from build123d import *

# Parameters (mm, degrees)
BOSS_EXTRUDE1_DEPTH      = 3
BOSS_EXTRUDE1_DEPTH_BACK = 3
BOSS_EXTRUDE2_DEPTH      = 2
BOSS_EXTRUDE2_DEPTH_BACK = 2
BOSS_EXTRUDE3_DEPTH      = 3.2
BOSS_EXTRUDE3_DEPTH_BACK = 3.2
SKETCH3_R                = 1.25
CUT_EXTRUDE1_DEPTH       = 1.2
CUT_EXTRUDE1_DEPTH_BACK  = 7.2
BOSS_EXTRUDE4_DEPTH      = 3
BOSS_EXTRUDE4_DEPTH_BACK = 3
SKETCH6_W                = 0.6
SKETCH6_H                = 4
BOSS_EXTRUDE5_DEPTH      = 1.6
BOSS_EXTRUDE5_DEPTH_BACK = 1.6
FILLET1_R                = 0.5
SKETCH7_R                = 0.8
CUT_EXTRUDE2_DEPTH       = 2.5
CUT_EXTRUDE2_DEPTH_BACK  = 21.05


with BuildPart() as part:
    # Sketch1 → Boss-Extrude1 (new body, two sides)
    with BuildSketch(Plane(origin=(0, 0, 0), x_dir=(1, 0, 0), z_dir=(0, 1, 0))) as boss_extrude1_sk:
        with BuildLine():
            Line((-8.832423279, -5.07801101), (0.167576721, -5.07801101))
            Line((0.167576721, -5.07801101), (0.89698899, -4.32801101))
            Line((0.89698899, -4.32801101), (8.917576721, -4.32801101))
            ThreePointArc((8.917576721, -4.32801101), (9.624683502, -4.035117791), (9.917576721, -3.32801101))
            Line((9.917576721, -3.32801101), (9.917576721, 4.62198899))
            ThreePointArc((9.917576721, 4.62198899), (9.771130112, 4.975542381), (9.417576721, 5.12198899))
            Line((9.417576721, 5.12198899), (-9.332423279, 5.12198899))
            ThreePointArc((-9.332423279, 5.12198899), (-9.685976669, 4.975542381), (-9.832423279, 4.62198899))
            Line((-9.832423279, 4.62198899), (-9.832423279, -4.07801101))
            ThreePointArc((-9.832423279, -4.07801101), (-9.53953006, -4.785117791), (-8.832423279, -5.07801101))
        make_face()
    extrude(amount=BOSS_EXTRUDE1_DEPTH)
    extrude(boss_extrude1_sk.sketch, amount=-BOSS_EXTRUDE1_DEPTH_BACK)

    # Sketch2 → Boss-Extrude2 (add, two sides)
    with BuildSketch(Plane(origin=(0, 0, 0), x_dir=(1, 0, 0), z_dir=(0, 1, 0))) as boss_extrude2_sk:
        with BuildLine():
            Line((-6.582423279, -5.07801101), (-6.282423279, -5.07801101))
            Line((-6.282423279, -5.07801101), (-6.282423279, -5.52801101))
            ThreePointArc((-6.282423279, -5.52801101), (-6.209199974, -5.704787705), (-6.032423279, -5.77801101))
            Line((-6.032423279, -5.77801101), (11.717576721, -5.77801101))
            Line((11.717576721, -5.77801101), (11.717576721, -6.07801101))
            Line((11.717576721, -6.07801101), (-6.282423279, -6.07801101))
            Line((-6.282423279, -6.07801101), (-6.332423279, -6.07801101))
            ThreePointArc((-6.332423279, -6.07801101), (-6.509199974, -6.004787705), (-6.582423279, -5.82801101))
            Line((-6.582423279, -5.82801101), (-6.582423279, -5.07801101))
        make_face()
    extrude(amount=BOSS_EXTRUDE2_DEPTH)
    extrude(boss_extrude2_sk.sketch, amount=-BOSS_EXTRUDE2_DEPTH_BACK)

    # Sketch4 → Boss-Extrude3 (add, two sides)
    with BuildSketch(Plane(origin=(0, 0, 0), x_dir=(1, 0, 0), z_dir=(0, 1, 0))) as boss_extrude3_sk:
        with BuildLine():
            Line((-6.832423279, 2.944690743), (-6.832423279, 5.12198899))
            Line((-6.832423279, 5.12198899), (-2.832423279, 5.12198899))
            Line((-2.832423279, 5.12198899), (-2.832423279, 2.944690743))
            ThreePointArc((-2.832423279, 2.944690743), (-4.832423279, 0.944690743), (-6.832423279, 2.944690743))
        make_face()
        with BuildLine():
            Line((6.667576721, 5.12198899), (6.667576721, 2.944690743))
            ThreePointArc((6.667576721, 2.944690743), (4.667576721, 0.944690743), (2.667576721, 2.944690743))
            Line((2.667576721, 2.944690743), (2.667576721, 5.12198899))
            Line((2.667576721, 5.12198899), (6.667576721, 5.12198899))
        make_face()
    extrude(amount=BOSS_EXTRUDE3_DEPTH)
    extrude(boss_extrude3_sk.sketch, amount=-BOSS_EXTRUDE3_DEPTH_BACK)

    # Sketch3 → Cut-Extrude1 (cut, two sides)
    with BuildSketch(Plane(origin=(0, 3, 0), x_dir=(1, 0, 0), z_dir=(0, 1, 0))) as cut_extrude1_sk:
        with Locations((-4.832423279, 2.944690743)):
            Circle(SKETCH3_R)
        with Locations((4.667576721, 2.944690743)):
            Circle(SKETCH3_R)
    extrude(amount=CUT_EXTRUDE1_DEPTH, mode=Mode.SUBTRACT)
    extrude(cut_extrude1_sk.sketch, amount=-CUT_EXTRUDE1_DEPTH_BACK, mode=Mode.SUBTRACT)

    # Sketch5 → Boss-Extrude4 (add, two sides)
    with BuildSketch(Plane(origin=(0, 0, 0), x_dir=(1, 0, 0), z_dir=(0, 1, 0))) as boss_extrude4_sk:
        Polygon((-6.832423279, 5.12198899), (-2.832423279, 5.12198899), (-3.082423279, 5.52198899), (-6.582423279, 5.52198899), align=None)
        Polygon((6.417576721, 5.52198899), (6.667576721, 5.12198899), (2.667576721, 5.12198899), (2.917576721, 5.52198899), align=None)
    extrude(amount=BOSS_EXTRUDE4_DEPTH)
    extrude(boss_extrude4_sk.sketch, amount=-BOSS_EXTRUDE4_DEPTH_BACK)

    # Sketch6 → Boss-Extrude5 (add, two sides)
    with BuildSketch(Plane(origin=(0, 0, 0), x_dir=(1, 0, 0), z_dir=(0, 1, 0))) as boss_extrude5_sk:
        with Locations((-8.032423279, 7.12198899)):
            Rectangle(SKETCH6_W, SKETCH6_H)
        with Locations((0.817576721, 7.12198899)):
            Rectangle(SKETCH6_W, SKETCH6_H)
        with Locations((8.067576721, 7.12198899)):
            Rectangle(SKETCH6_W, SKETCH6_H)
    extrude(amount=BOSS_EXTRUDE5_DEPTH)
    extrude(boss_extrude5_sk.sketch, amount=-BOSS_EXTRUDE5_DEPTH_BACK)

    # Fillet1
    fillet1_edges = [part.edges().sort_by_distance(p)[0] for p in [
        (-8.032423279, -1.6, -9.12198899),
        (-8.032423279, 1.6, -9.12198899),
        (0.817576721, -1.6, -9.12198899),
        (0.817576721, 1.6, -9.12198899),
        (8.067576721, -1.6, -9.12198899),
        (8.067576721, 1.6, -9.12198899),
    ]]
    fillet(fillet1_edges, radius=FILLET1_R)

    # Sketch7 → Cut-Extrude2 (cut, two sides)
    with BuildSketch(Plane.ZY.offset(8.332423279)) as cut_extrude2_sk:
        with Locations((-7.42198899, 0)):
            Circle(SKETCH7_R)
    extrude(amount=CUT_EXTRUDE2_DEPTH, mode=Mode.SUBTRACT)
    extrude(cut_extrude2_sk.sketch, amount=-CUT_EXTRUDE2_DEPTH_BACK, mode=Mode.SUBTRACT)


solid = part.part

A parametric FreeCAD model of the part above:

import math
import FreeCAD as App
import Part
import Sketcher
from FreeCAD import Vector


def edges_at(feature, points):
    """Names of the edges that pass closest to the given points."""
    edges = feature.Shape.Edges
    near = lambda p: min(range(len(edges)), key=lambda i: edges[i].distToShape(Part.Vertex(*p))[0])
    return sorted({f"Edge{near(p) + 1}" for p in points})

doc = App.newDocument("Part")
body = doc.addObject("PartDesign::Body", "Body")

# Sketch on XZ plane
sketch1 = body.newObject("Sketcher::SketchObject", "Sketch")
sketch1.AttachmentSupport = (doc.getObject("XZ_Plane"), [""])
sketch1.MapMode = "FlatFace"
sketch1.addGeometry(Part.LineSegment(Vector(-8.83, 5.08, 0), Vector(0.17, 5.08, 0)), False)
sketch1.addGeometry(Part.LineSegment(Vector(0.17, 5.08, 0), Vector(0.9, 4.33, 0)), False)
sketch1.addGeometry(Part.LineSegment(Vector(0.9, 4.33, 0), Vector(8.92, 4.33, 0)), False)
sketch1.addGeometry(Part.ArcOfCircle(Part.Circle(Vector(8.92, 3.33, 0), Vector(0, 0, 1), 1), math.radians(0), math.radians(90)), False)
sketch1.addGeometry(Part.LineSegment(Vector(9.92, 3.33, 0), Vector(9.92, -4.62, 0)), False)
sketch1.addGeometry(Part.ArcOfCircle(Part.Circle(Vector(9.42, -4.62, 0), Vector(0, 0, 1), 0.5), math.radians(-90), math.radians(0)), False)
sketch1.addGeometry(Part.LineSegment(Vector(9.42, -5.12, 0), Vector(-9.33, -5.12, 0)), False)
sketch1.addGeometry(Part.ArcOfCircle(Part.Circle(Vector(-9.33, -4.62, 0), Vector(0, 0, 1), 0.5), math.radians(180), math.radians(270)), False)
sketch1.addGeometry(Part.LineSegment(Vector(-9.83, -4.62, 0), Vector(-9.83, 4.08, 0)), False)
sketch1.addGeometry(Part.ArcOfCircle(Part.Circle(Vector(-8.83, 4.08, 0), Vector(0, 0, 1), 1), math.radians(90), math.radians(180)), False)
sketch1.addConstraint(Sketcher.Constraint("Coincident", 0, 2, 1, 1))
sketch1.addConstraint(Sketcher.Constraint("Coincident", 1, 2, 2, 1))
sketch1.addConstraint(Sketcher.Constraint("Tangent", 2, 2, 3, 2))
sketch1.addConstraint(Sketcher.Constraint("Tangent", 3, 1, 4, 1))
sketch1.addConstraint(Sketcher.Constraint("Tangent", 4, 2, 5, 2))
sketch1.addConstraint(Sketcher.Constraint("Tangent", 5, 1, 6, 1))
sketch1.addConstraint(Sketcher.Constraint("Tangent", 6, 2, 7, 2))
sketch1.addConstraint(Sketcher.Constraint("Tangent", 7, 1, 8, 1))
sketch1.addConstraint(Sketcher.Constraint("Tangent", 8, 2, 9, 2))
sketch1.addConstraint(Sketcher.Constraint("Tangent", 9, 1, 0, 1))
sketch1.addConstraint(Sketcher.Constraint("Horizontal", 0))
sketch1.addConstraint(Sketcher.Constraint("Horizontal", 2))
sketch1.addConstraint(Sketcher.Constraint("Vertical", 4))
sketch1.addConstraint(Sketcher.Constraint("Horizontal", 6))
sketch1.addConstraint(Sketcher.Constraint("Vertical", 8))
sketch1.addConstraint(Sketcher.Constraint("Equal", 5, 7))
sketch1.addConstraint(Sketcher.Constraint("Equal", 3, 9))
sketch1.addConstraint(Sketcher.Constraint("Radius", 3, 1.0))
sketch1.addConstraint(Sketcher.Constraint("Radius", 5, 0.5))
sketch1.addConstraint(Sketcher.Constraint("DistanceX", 0, 1, 0, 2, 9.0))
sketch1.addConstraint(Sketcher.Constraint("DistanceY", 8, 1, 8, 2, 8.7))
sketch1.addConstraint(Sketcher.Constraint("DistanceX", 6, 2, 6, 1, 18.75))
sketch1.addConstraint(Sketcher.Constraint("DistanceY", 4, 2, 4, 1, 7.95))
sketch1.addConstraint(Sketcher.Constraint("DistanceX", 2, 1, 2, 2, 8.020588))
sketch1.addConstraint(Sketcher.Constraint("DistanceY", -1, 1, 3, 3, 3.328011))
sketch1.addConstraint(Sketcher.Constraint("DistanceX", -1, 1, 1, 2, 0.896989))
pad1 = body.newObject("PartDesign::Pad", "Pad")
pad1.Profile = sketch1
pad1.Type = "TwoLengths"
pad1.Length = 3
pad1.Length2 = 3
pad1.Reversed = True

# Sketch on XZ plane
sketch2 = body.newObject("Sketcher::SketchObject", "Sketch001")
sketch2.AttachmentSupport = (doc.getObject("XZ_Plane"), [""])
sketch2.MapMode = "FlatFace"
sketch2.addGeometry(Part.LineSegment(Vector(-6.28, 5.08, 0), Vector(-6.58, 5.08, 0)), False)
sketch2.addGeometry(Part.LineSegment(Vector(-6.58, 5.08, 0), Vector(-6.58, 5.83, 0)), False)
sketch2.addGeometry(Part.ArcOfCircle(Part.Circle(Vector(-6.33, 5.83, 0), Vector(0, 0, 1), 0.25), math.radians(90), math.radians(180)), False)
sketch2.addGeometry(Part.LineSegment(Vector(-6.33, 6.08, 0), Vector(11.72, 6.08, 0)), False)
sketch2.addGeometry(Part.LineSegment(Vector(11.72, 6.08, 0), Vector(11.72, 5.78, 0)), False)
sketch2.addGeometry(Part.LineSegment(Vector(11.72, 5.78, 0), Vector(-6.03, 5.78, 0)), False)
sketch2.addGeometry(Part.ArcOfCircle(Part.Circle(Vector(-6.03, 5.53, 0), Vector(0, 0, 1), 0.25), math.radians(90), math.radians(180)), False)
sketch2.addGeometry(Part.LineSegment(Vector(-6.28, 5.53, 0), Vector(-6.28, 5.08, 0)), False)
sketch2.addConstraint(Sketcher.Constraint("Coincident", 0, 2, 1, 1))
sketch2.addConstraint(Sketcher.Constraint("Tangent", 1, 2, 2, 2))
sketch2.addConstraint(Sketcher.Constraint("Tangent", 2, 1, 3, 1))
sketch2.addConstraint(Sketcher.Constraint("Coincident", 3, 2, 4, 1))
sketch2.addConstraint(Sketcher.Constraint("Coincident", 4, 2, 5, 1))
sketch2.addConstraint(Sketcher.Constraint("Tangent", 5, 2, 6, 1))
sketch2.addConstraint(Sketcher.Constraint("Tangent", 6, 2, 7, 1))
sketch2.addConstraint(Sketcher.Constraint("Coincident", 7, 2, 0, 1))
sketch2.addConstraint(Sketcher.Constraint("Horizontal", 0))
sketch2.addConstraint(Sketcher.Constraint("Vertical", 1))
sketch2.addConstraint(Sketcher.Constraint("Horizontal", 3))
sketch2.addConstraint(Sketcher.Constraint("Vertical", 4))
sketch2.addConstraint(Sketcher.Constraint("Horizontal", 5))
sketch2.addConstraint(Sketcher.Constraint("Vertical", 7))
sketch2.addConstraint(Sketcher.Constraint("Equal", 2, 6))
sketch2.addConstraint(Sketcher.Constraint("Equal", 0, 4))
sketch2.addConstraint(Sketcher.Constraint("Radius", 2, 0.25))
sketch2.addConstraint(Sketcher.Constraint("DistanceX", 0, 2, 0, 1, 0.3))
sketch2.addConstraint(Sketcher.Constraint("DistanceY", 0, 2, 2, 1, 1.0))
sketch2.addConstraint(Sketcher.Constraint("DistanceX", 3, 1, 3, 2, 18.05))
sketch2.addConstraint(Sketcher.Constraint("DistanceY", -1, 1, 2, 3, 5.828011))
sketch2.addConstraint(Sketcher.Constraint("DistanceX", 2, 3, -1, 1, 6.332423))
pad2 = body.newObject("PartDesign::Pad", "Pad001")
pad2.Profile = sketch2
pad2.Type = "TwoLengths"
pad2.Length = 2
pad2.Length2 = 2
pad2.Reversed = True

# Sketch on XZ plane
sketch3 = body.newObject("Sketcher::SketchObject", "Sketch002")
sketch3.AttachmentSupport = (doc.getObject("XZ_Plane"), [""])
sketch3.MapMode = "FlatFace"
sketch3.addGeometry(Part.LineSegment(Vector(-6.8, -5.1, 0), Vector(-6.8, -2.9, 0)), False)
sketch3.addGeometry(Part.ArcOfCircle(Part.Circle(Vector(-4.8, -2.9, 0), Vector(0, 0, 1), 2), math.radians(0), math.radians(180)), False)
sketch3.addGeometry(Part.LineSegment(Vector(-2.8, -2.9, 0), Vector(-2.8, -5.1, 0)), False)
sketch3.addGeometry(Part.LineSegment(Vector(-2.8, -5.1, 0), Vector(-6.8, -5.1, 0)), False)
sketch3.addGeometry(Part.LineSegment(Vector(6.7, -2.9, 0), Vector(6.7, -5.1, 0)), False)
sketch3.addGeometry(Part.LineSegment(Vector(6.7, -5.1, 0), Vector(2.7, -5.1, 0)), False)
sketch3.addGeometry(Part.LineSegment(Vector(2.7, -5.1, 0), Vector(2.7, -2.9, 0)), False)
sketch3.addGeometry(Part.ArcOfCircle(Part.Circle(Vector(4.7, -2.9, 0), Vector(0, 0, 1), 2), math.radians(0), math.radians(180)), False)
sketch3.addConstraint(Sketcher.Constraint("Tangent", 0, 2, 1, 2))
sketch3.addConstraint(Sketcher.Constraint("Tangent", 1, 1, 2, 1))
sketch3.addConstraint(Sketcher.Constraint("Coincident", 2, 2, 3, 1))
sketch3.addConstraint(Sketcher.Constraint("Coincident", 3, 2, 0, 1))
sketch3.addConstraint(Sketcher.Constraint("Coincident", 4, 2, 5, 1))
sketch3.addConstraint(Sketcher.Constraint("Coincident", 5, 2, 6, 1))
sketch3.addConstraint(Sketcher.Constraint("Tangent", 6, 2, 7, 2))
sketch3.addConstraint(Sketcher.Constraint("Tangent", 7, 1, 4, 1))
sketch3.addConstraint(Sketcher.Constraint("Vertical", 0))
sketch3.addConstraint(Sketcher.Constraint("Vertical", 2))
sketch3.addConstraint(Sketcher.Constraint("Horizontal", 3))
sketch3.addConstraint(Sketcher.Constraint("Vertical", 4))
sketch3.addConstraint(Sketcher.Constraint("Horizontal", 5))
sketch3.addConstraint(Sketcher.Constraint("Vertical", 6))
sketch3.addConstraint(Sketcher.Constraint("Equal", 1, 7))
sketch3.addConstraint(Sketcher.Constraint("Horizontal", 1, 3, 7, 3))
sketch3.addConstraint(Sketcher.Constraint("Horizontal", 3, 2, 4, 2))
sketch3.addConstraint(Sketcher.Constraint("Radius", 1, 2.0))
sketch3.addConstraint(Sketcher.Constraint("DistanceX", 1, 3, 7, 3, 9.5))
sketch3.addConstraint(Sketcher.Constraint("DistanceY", 0, 1, 0, 2, 2.177298))
sketch3.addConstraint(Sketcher.Constraint("DistanceY", 1, 3, -1, 1, 2.944691))
sketch3.addConstraint(Sketcher.Constraint("DistanceX", 1, 3, -1, 1, 4.832423))
pad3 = body.newObject("PartDesign::Pad", "Pad002")
pad3.Profile = sketch3
pad3.Type = "TwoLengths"
pad3.Length = 3.2
pad3.Length2 = 3.2
pad3.Reversed = True

# Sketch on XZ plane
sketch4 = body.newObject("Sketcher::SketchObject", "Sketch003")
sketch4.AttachmentSupport = (doc.getObject("XZ_Plane"), [""])
sketch4.MapMode = "FlatFace"
sketch4.AttachmentOffset = App.Placement(Vector(0, 0, -3), App.Rotation())
sketch4.addGeometry(Part.Circle(Vector(-4.8, -2.9, 0), Vector(0, 0, 1), 1.2), False)
sketch4.addGeometry(Part.Circle(Vector(4.7, -2.9, 0), Vector(0, 0, 1), 1.2), False)
sketch4.addConstraint(Sketcher.Constraint("Equal", 0, 1))
sketch4.addConstraint(Sketcher.Constraint("Horizontal", 0, 3, 1, 3))
sketch4.addConstraint(Sketcher.Constraint("Diameter", 0, 2.5))
sketch4.addConstraint(Sketcher.Constraint("DistanceX", 0, 3, 1, 3, 9.5))
sketch4.addConstraint(Sketcher.Constraint("DistanceY", 0, 3, -1, 1, 2.944691))
sketch4.addConstraint(Sketcher.Constraint("DistanceX", 0, 3, -1, 1, 4.832423))
pocket1 = body.newObject("PartDesign::Pocket", "Pocket")
pocket1.Profile = sketch4
pocket1.Type = "ThroughAll"
pocket1.Midplane = True

# Sketch on XZ plane
sketch5 = body.newObject("Sketcher::SketchObject", "Sketch004")
sketch5.AttachmentSupport = (doc.getObject("XZ_Plane"), [""])
sketch5.MapMode = "FlatFace"
sketch5.addGeometry(Part.LineSegment(Vector(-6.83, -5.12, 0), Vector(-2.83, -5.12, 0)), False)
sketch5.addGeometry(Part.LineSegment(Vector(-2.83, -5.12, 0), Vector(-3.08, -5.52, 0)), False)
sketch5.addGeometry(Part.LineSegment(Vector(-3.08, -5.52, 0), Vector(-6.58, -5.52, 0)), False)
sketch5.addGeometry(Part.LineSegment(Vector(-6.58, -5.52, 0), Vector(-6.83, -5.12, 0)), False)
sketch5.addGeometry(Part.LineSegment(Vector(6.67, -5.12, 0), Vector(6.42, -5.52, 0)), False)
sketch5.addGeometry(Part.LineSegment(Vector(6.42, -5.52, 0), Vector(2.92, -5.52, 0)), False)
sketch5.addGeometry(Part.LineSegment(Vector(2.92, -5.52, 0), Vector(2.67, -5.12, 0)), False)
sketch5.addGeometry(Part.LineSegment(Vector(2.67, -5.12, 0), Vector(6.67, -5.12, 0)), False)
sketch5.addConstraint(Sketcher.Constraint("Coincident", 0, 2, 1, 1))
sketch5.addConstraint(Sketcher.Constraint("Coincident", 1, 2, 2, 1))
sketch5.addConstraint(Sketcher.Constraint("Coincident", 2, 2, 3, 1))
sketch5.addConstraint(Sketcher.Constraint("Coincident", 3, 2, 0, 1))
sketch5.addConstraint(Sketcher.Constraint("Coincident", 4, 2, 5, 1))
sketch5.addConstraint(Sketcher.Constraint("Coincident", 5, 2, 6, 1))
sketch5.addConstraint(Sketcher.Constraint("Coincident", 6, 2, 7, 1))
sketch5.addConstraint(Sketcher.Constraint("Coincident", 7, 2, 4, 1))
sketch5.addConstraint(Sketcher.Constraint("Horizontal", 0))
sketch5.addConstraint(Sketcher.Constraint("Horizontal", 2))
sketch5.addConstraint(Sketcher.Constraint("Horizontal", 5))
sketch5.addConstraint(Sketcher.Constraint("Horizontal", 7))
sketch5.addConstraint(Sketcher.Constraint("Parallel", 1, 4))
sketch5.addConstraint(Sketcher.Constraint("Parallel", 3, 6))
sketch5.addConstraint(Sketcher.Constraint("Horizontal", 2, 2, 4, 2))
sketch5.addConstraint(Sketcher.Constraint("Horizontal", 3, 2, 6, 2))
sketch5.addConstraint(Sketcher.Constraint("Equal", 2, 5))
sketch5.addConstraint(Sketcher.Constraint("Equal", 1, 3))
sketch5.addConstraint(Sketcher.Constraint("DistanceX", 0, 1, 0, 2, 4.0))
sketch5.addConstraint(Sketcher.Constraint("DistanceX", 2, 2, 2, 1, 3.5))
sketch5.addConstraint(Sketcher.Constraint("DistanceX", 2, 2, 4, 2, 13.0))
sketch5.addConstraint(Sketcher.Constraint("DistanceY", 1, 2, 0, 2, 0.4))
sketch5.addConstraint(Sketcher.Constraint("DistanceY", 0, 2, -1, 1, 5.121989))
sketch5.addConstraint(Sketcher.Constraint("DistanceX", 0, 2, -1, 1, 2.832423))
pad4 = body.newObject("PartDesign::Pad", "Pad003")
pad4.Profile = sketch5
pad4.Type = "TwoLengths"
pad4.Length = 3
pad4.Length2 = 3
pad4.Reversed = True

# Sketch on XZ plane
sketch6 = body.newObject("Sketcher::SketchObject", "Sketch005")
sketch6.AttachmentSupport = (doc.getObject("XZ_Plane"), [""])
sketch6.MapMode = "FlatFace"
sketch6.addGeometry(Part.LineSegment(Vector(-8.3, -9.1, 0), Vector(-8.3, -5.1, 0)), False)
sketch6.addGeometry(Part.LineSegment(Vector(-8.3, -5.1, 0), Vector(-7.7, -5.1, 0)), False)
sketch6.addGeometry(Part.LineSegment(Vector(-7.7, -5.1, 0), Vector(-7.7, -9.1, 0)), False)
sketch6.addGeometry(Part.LineSegment(Vector(-7.7, -9.1, 0), Vector(-8.3, -9.1, 0)), False)
sketch6.addGeometry(Part.LineSegment(Vector(0.5, -9.1, 0), Vector(0.5, -5.1, 0)), False)
sketch6.addGeometry(Part.LineSegment(Vector(0.5, -5.1, 0), Vector(1.1, -5.1, 0)), False)
sketch6.addGeometry(Part.LineSegment(Vector(1.1, -5.1, 0), Vector(1.1, -9.1, 0)), False)
sketch6.addGeometry(Part.LineSegment(Vector(1.1, -9.1, 0), Vector(0.5, -9.1, 0)), False)
sketch6.addGeometry(Part.LineSegment(Vector(7.8, -9.1, 0), Vector(7.8, -5.1, 0)), False)
sketch6.addGeometry(Part.LineSegment(Vector(7.8, -5.1, 0), Vector(8.4, -5.1, 0)), False)
sketch6.addGeometry(Part.LineSegment(Vector(8.4, -5.1, 0), Vector(8.4, -9.1, 0)), False)
sketch6.addGeometry(Part.LineSegment(Vector(8.4, -9.1, 0), Vector(7.8, -9.1, 0)), False)
sketch6.addConstraint(Sketcher.Constraint("Coincident", 0, 2, 1, 1))
sketch6.addConstraint(Sketcher.Constraint("Coincident", 1, 2, 2, 1))
sketch6.addConstraint(Sketcher.Constraint("Coincident", 2, 2, 3, 1))
sketch6.addConstraint(Sketcher.Constraint("Coincident", 3, 2, 0, 1))
sketch6.addConstraint(Sketcher.Constraint("Coincident", 4, 2, 5, 1))
sketch6.addConstraint(Sketcher.Constraint("Coincident", 5, 2, 6, 1))
sketch6.addConstraint(Sketcher.Constraint("Coincident", 6, 2, 7, 1))
sketch6.addConstraint(Sketcher.Constraint("Coincident", 7, 2, 4, 1))
sketch6.addConstraint(Sketcher.Constraint("Coincident", 8, 2, 9, 1))
sketch6.addConstraint(Sketcher.Constraint("Coincident", 9, 2, 10, 1))
sketch6.addConstraint(Sketcher.Constraint("Coincident", 10, 2, 11, 1))
sketch6.addConstraint(Sketcher.Constraint("Coincident", 11, 2, 8, 1))
sketch6.addConstraint(Sketcher.Constraint("Vertical", 0))
sketch6.addConstraint(Sketcher.Constraint("Horizontal", 1))
sketch6.addConstraint(Sketcher.Constraint("Vertical", 2))
sketch6.addConstraint(Sketcher.Constraint("Horizontal", 3))
sketch6.addConstraint(Sketcher.Constraint("Vertical", 4))
sketch6.addConstraint(Sketcher.Constraint("Horizontal", 5))
sketch6.addConstraint(Sketcher.Constraint("Vertical", 6))
sketch6.addConstraint(Sketcher.Constraint("Horizontal", 7))
sketch6.addConstraint(Sketcher.Constraint("Vertical", 8))
sketch6.addConstraint(Sketcher.Constraint("Horizontal", 9))
sketch6.addConstraint(Sketcher.Constraint("Vertical", 10))
sketch6.addConstraint(Sketcher.Constraint("Horizontal", 11))
sketch6.addConstraint(Sketcher.Constraint("Horizontal", 1, 2, 4, 2))
sketch6.addConstraint(Sketcher.Constraint("Horizontal", 3, 2, 6, 2))
sketch6.addConstraint(Sketcher.Constraint("Horizontal", 5, 2, 8, 2))
sketch6.addConstraint(Sketcher.Constraint("Horizontal", 7, 2, 10, 2))
sketch6.addConstraint(Sketcher.Constraint("Equal", 3, 5))
sketch6.addConstraint(Sketcher.Constraint("Equal", 7, 9))
sketch6.addConstraint(Sketcher.Constraint("DistanceY", 0, 1, 0, 2, 4.0))
sketch6.addConstraint(Sketcher.Constraint("DistanceX", 1, 1, 1, 2, 0.6))
sketch6.addConstraint(Sketcher.Constraint("DistanceX", 1, 2, 8, 2, 15.5))
sketch6.addConstraint(Sketcher.Constraint("DistanceX", 1, 2, 4, 2, 8.25))
sketch6.addConstraint(Sketcher.Constraint("DistanceY", 0, 2, -1, 1, 5.121989))
sketch6.addConstraint(Sketcher.Constraint("DistanceX", 0, 2, -1, 1, 8.332423))
pad5 = body.newObject("PartDesign::Pad", "Pad004")
pad5.Profile = sketch6
pad5.Type = "TwoLengths"
pad5.Length = 1.6
pad5.Length2 = 1.6
pad5.Reversed = True
doc.recompute()

fillet = body.newObject("PartDesign::Fillet", "Fillet")
fillet.Base = (pad5, edges_at(pad5, [
    (-8.032, -1.6, -9.122),
    (-8.032, 1.6, -9.122),
    (0.818, -1.6, -9.122),
    (0.818, 1.6, -9.122),
    (8.068, -1.6, -9.122),
    (8.068, 1.6, -9.122),
]))
fillet.Radius = 0.5

# Sketch on YZ plane
sketch7 = body.newObject("Sketcher::SketchObject", "Sketch006")
sketch7.AttachmentSupport = (doc.getObject("YZ_Plane"), [""])
sketch7.MapMode = "FlatFace"
sketch7.AttachmentOffset = App.Placement(Vector(0, 0, -8.332423), App.Rotation())
sketch7.addGeometry(Part.Circle(Vector(0, -7.4, 0), Vector(0, 0, 1), 0.8), False)
sketch7.addConstraint(Sketcher.Constraint("PointOnObject", 0, 3, -2))
sketch7.addConstraint(Sketcher.Constraint("Diameter", 0, 1.6))
sketch7.addConstraint(Sketcher.Constraint("DistanceY", 0, 3, -1, 1, 7.421989))
pocket2 = body.newObject("PartDesign::Pocket", "Pocket001")
pocket2.Profile = sketch7
pocket2.Type = "ThroughAll"
pocket2.Midplane = True

doc.recompute()
